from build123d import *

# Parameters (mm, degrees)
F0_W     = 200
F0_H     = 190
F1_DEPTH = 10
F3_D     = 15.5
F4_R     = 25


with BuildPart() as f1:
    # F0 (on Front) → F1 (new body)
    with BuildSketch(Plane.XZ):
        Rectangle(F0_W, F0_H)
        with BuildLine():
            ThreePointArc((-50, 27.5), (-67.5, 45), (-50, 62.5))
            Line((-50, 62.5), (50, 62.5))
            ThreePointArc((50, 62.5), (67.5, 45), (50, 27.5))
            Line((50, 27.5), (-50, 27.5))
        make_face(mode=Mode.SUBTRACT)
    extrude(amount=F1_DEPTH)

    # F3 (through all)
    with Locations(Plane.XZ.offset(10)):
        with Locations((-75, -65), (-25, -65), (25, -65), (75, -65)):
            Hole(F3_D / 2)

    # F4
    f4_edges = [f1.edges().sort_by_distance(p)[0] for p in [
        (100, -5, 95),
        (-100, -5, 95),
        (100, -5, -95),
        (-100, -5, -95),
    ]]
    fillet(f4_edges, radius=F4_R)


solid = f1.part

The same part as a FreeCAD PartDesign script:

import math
import FreeCAD as App
import Part
import Sketcher


def edges_at(feature, points):
    """Names of the edges that pass closest to the given points."""
    edges = feature.Shape.Edges
    near = lambda p: min(range(len(edges)), key=lambda i: edges[i].distToShape(Part.Vertex(*p))[0])
    return sorted({f"Edge{near(p) + 1}" for p in points})


def add_polygon(sketch, points):
    """Adds a closed chain of lines whose ends are joined by coincident constraints."""
    first, n = sketch.GeometryCount, len(points)
    for a, b in zip(points, points[1:] + points[:1]):
        sketch.addGeometry(Part.LineSegment(App.Vector(*a, 0), App.Vector(*b, 0)), False)
    for i in range(n):
        sketch.addConstraint(Sketcher.Constraint("Coincident", first + i, 2, first + (i + 1) % n, 1))

doc = App.newDocument("Part")
body = doc.addObject("PartDesign::Body", "Body")

sketch1 = doc.addObject("Sketcher::SketchObject", "Sketch")
body.addObject(sketch1)
sketch1.AttachmentSupport = (doc.XZ_Plane, [""])
sketch1.MapMode = "FlatFace"
add_polygon(sketch1, [(-100, 95), (-100, -95), (100, -95), (100, 95)])
sketch1.addGeometry(Part.LineSegment(App.Vector(50, 28, 0), App.Vector(-50, 28, 0)), False)
sketch1.addGeometry(Part.ArcOfCircle(Part.Circle(App.Vector(-50, 45, 0), App.Vector(0, 0, 1), 18), math.radians(90), math.radians(270)), False)
sketch1.addGeometry(Part.LineSegment(App.Vector(-50, 62, 0), App.Vector(50, 62, 0)), False)
sketch1.addGeometry(Part.ArcOfCircle(Part.Circle(App.Vector(50, 45, 0), App.Vector(0, 0, 1), 18), math.radians(-90), math.radians(90)), False)
sketch1.addConstraint(Sketcher.Constraint("Tangent", 4, 2, 5, 2))
sketch1.addConstraint(Sketcher.Constraint("Tangent", 5, 1, 6, 1))
sketch1.addConstraint(Sketcher.Constraint("Tangent", 6, 2, 7, 2))
sketch1.addConstraint(Sketcher.Constraint("Tangent", 7, 1, 4, 1))
sketch1.addConstraint(Sketcher.Constraint("Vertical", 0))
sketch1.addConstraint(Sketcher.Constraint("Horizontal", 1))
sketch1.addConstraint(Sketcher.Constraint("Vertical", 2))
sketch1.addConstraint(Sketcher.Constraint("Horizontal", 3))
sketch1.addConstraint(Sketcher.Constraint("Horizontal", 4))
sketch1.addConstraint(Sketcher.Constraint("Horizontal", 6))
sketch1.addConstraint(Sketcher.Constraint("Symmetric", 0, 2, 2, 2, -1, 1))
sketch1.addConstraint(Sketcher.Constraint("Radius", 5, 17.5))
sketch1.addConstraint(Sketcher.Constraint("DistanceX", 1, 1, 1, 2, 200.0))
sketch1.addConstraint(Sketcher.Constraint("DistanceX", 4, 2, 4, 1, 100.0))
sketch1.addConstraint(Sketcher.Constraint("DistanceY", 0, 2, 0, 1, 190.0))
sketch1.addConstraint(Sketcher.Constraint("DistanceX", 5, 3, -1, 1, 50.0))
sketch1.addConstraint(Sketcher.Constraint("DistanceY", -1, 1, 5, 3, 45.0))
pad1 = doc.addObject("PartDesign::Pad", "Pad")
body.addObject(pad1)
pad1.Profile = sketch1
pad1.Length = 10

sketch2 = doc.addObject("Sketcher::SketchObject", "Sketch001")
body.addObject(sketch2)
sketch2.AttachmentSupport = (doc.XZ_Plane, [""])
sketch2.MapMode = "FlatFace"
sketch2.AttachmentOffset = App.Placement(App.Vector(0, 0, 10), App.Rotation())
sketch2.addGeometry(Part.Circle(App.Vector(-75, -65, 0), App.Vector(0, 0, 1), 8), False)
sketch2.addGeometry(Part.Circle(App.Vector(-25, -65, 0), App.Vector(0, 0, 1), 8), False)
sketch2.addGeometry(Part.Circle(App.Vector(25, -65, 0), App.Vector(0, 0, 1), 8), False)
sketch2.addGeometry(Part.Circle(App.Vector(75, -65, 0), App.Vector(0, 0, 1), 8), False)
sketch2.addConstraint(Sketcher.Constraint("Equal", 0, 1))
sketch2.addConstraint(Sketcher.Constraint("Equal", 1, 2))
sketch2.addConstraint(Sketcher.Constraint("Equal", 2, 3))
sketch2.addConstraint(Sketcher.Constraint("Symmetric", 1, 3, 2, 3, -2))
sketch2.addConstraint(Sketcher.Constraint("Symmetric", 0, 3, 3, 3, -2))
sketch2.addConstraint(Sketcher.Constraint("Horizontal", 0, 3, 1, 3))
sketch2.addConstraint(Sketcher.Constraint("Diameter", 0, 15.5))
sketch2.addConstraint(Sketcher.Constraint("DistanceX", 0, 3, -1, 1, 75.0))
sketch2.addConstraint(Sketcher.Constraint("DistanceY", 0, 3, -1, 1, 65.0))
sketch2.addConstraint(Sketcher.Constraint("DistanceX", 1, 3, -1, 1, 25.0))
doc.recompute()
hole = doc.addObject("PartDesign::Hole", "Hole")
body.addObject(hole)
hole.Profile = sketch2
hole.ThreadType = "None"
hole.Diameter = 15.5
hole.DepthType = "ThroughAll"
doc.recompute()

fillet = doc.addObject("PartDesign::Fillet", "Fillet")
body.addObject(fillet)
fillet.Base = (hole, edges_at(hole, [
    (100, -5, 95),
    (-100, -5, 95),
    (100, -5, -95),
    (-100, -5, -95),
]))
fillet.Radius = 25

doc.recompute()
